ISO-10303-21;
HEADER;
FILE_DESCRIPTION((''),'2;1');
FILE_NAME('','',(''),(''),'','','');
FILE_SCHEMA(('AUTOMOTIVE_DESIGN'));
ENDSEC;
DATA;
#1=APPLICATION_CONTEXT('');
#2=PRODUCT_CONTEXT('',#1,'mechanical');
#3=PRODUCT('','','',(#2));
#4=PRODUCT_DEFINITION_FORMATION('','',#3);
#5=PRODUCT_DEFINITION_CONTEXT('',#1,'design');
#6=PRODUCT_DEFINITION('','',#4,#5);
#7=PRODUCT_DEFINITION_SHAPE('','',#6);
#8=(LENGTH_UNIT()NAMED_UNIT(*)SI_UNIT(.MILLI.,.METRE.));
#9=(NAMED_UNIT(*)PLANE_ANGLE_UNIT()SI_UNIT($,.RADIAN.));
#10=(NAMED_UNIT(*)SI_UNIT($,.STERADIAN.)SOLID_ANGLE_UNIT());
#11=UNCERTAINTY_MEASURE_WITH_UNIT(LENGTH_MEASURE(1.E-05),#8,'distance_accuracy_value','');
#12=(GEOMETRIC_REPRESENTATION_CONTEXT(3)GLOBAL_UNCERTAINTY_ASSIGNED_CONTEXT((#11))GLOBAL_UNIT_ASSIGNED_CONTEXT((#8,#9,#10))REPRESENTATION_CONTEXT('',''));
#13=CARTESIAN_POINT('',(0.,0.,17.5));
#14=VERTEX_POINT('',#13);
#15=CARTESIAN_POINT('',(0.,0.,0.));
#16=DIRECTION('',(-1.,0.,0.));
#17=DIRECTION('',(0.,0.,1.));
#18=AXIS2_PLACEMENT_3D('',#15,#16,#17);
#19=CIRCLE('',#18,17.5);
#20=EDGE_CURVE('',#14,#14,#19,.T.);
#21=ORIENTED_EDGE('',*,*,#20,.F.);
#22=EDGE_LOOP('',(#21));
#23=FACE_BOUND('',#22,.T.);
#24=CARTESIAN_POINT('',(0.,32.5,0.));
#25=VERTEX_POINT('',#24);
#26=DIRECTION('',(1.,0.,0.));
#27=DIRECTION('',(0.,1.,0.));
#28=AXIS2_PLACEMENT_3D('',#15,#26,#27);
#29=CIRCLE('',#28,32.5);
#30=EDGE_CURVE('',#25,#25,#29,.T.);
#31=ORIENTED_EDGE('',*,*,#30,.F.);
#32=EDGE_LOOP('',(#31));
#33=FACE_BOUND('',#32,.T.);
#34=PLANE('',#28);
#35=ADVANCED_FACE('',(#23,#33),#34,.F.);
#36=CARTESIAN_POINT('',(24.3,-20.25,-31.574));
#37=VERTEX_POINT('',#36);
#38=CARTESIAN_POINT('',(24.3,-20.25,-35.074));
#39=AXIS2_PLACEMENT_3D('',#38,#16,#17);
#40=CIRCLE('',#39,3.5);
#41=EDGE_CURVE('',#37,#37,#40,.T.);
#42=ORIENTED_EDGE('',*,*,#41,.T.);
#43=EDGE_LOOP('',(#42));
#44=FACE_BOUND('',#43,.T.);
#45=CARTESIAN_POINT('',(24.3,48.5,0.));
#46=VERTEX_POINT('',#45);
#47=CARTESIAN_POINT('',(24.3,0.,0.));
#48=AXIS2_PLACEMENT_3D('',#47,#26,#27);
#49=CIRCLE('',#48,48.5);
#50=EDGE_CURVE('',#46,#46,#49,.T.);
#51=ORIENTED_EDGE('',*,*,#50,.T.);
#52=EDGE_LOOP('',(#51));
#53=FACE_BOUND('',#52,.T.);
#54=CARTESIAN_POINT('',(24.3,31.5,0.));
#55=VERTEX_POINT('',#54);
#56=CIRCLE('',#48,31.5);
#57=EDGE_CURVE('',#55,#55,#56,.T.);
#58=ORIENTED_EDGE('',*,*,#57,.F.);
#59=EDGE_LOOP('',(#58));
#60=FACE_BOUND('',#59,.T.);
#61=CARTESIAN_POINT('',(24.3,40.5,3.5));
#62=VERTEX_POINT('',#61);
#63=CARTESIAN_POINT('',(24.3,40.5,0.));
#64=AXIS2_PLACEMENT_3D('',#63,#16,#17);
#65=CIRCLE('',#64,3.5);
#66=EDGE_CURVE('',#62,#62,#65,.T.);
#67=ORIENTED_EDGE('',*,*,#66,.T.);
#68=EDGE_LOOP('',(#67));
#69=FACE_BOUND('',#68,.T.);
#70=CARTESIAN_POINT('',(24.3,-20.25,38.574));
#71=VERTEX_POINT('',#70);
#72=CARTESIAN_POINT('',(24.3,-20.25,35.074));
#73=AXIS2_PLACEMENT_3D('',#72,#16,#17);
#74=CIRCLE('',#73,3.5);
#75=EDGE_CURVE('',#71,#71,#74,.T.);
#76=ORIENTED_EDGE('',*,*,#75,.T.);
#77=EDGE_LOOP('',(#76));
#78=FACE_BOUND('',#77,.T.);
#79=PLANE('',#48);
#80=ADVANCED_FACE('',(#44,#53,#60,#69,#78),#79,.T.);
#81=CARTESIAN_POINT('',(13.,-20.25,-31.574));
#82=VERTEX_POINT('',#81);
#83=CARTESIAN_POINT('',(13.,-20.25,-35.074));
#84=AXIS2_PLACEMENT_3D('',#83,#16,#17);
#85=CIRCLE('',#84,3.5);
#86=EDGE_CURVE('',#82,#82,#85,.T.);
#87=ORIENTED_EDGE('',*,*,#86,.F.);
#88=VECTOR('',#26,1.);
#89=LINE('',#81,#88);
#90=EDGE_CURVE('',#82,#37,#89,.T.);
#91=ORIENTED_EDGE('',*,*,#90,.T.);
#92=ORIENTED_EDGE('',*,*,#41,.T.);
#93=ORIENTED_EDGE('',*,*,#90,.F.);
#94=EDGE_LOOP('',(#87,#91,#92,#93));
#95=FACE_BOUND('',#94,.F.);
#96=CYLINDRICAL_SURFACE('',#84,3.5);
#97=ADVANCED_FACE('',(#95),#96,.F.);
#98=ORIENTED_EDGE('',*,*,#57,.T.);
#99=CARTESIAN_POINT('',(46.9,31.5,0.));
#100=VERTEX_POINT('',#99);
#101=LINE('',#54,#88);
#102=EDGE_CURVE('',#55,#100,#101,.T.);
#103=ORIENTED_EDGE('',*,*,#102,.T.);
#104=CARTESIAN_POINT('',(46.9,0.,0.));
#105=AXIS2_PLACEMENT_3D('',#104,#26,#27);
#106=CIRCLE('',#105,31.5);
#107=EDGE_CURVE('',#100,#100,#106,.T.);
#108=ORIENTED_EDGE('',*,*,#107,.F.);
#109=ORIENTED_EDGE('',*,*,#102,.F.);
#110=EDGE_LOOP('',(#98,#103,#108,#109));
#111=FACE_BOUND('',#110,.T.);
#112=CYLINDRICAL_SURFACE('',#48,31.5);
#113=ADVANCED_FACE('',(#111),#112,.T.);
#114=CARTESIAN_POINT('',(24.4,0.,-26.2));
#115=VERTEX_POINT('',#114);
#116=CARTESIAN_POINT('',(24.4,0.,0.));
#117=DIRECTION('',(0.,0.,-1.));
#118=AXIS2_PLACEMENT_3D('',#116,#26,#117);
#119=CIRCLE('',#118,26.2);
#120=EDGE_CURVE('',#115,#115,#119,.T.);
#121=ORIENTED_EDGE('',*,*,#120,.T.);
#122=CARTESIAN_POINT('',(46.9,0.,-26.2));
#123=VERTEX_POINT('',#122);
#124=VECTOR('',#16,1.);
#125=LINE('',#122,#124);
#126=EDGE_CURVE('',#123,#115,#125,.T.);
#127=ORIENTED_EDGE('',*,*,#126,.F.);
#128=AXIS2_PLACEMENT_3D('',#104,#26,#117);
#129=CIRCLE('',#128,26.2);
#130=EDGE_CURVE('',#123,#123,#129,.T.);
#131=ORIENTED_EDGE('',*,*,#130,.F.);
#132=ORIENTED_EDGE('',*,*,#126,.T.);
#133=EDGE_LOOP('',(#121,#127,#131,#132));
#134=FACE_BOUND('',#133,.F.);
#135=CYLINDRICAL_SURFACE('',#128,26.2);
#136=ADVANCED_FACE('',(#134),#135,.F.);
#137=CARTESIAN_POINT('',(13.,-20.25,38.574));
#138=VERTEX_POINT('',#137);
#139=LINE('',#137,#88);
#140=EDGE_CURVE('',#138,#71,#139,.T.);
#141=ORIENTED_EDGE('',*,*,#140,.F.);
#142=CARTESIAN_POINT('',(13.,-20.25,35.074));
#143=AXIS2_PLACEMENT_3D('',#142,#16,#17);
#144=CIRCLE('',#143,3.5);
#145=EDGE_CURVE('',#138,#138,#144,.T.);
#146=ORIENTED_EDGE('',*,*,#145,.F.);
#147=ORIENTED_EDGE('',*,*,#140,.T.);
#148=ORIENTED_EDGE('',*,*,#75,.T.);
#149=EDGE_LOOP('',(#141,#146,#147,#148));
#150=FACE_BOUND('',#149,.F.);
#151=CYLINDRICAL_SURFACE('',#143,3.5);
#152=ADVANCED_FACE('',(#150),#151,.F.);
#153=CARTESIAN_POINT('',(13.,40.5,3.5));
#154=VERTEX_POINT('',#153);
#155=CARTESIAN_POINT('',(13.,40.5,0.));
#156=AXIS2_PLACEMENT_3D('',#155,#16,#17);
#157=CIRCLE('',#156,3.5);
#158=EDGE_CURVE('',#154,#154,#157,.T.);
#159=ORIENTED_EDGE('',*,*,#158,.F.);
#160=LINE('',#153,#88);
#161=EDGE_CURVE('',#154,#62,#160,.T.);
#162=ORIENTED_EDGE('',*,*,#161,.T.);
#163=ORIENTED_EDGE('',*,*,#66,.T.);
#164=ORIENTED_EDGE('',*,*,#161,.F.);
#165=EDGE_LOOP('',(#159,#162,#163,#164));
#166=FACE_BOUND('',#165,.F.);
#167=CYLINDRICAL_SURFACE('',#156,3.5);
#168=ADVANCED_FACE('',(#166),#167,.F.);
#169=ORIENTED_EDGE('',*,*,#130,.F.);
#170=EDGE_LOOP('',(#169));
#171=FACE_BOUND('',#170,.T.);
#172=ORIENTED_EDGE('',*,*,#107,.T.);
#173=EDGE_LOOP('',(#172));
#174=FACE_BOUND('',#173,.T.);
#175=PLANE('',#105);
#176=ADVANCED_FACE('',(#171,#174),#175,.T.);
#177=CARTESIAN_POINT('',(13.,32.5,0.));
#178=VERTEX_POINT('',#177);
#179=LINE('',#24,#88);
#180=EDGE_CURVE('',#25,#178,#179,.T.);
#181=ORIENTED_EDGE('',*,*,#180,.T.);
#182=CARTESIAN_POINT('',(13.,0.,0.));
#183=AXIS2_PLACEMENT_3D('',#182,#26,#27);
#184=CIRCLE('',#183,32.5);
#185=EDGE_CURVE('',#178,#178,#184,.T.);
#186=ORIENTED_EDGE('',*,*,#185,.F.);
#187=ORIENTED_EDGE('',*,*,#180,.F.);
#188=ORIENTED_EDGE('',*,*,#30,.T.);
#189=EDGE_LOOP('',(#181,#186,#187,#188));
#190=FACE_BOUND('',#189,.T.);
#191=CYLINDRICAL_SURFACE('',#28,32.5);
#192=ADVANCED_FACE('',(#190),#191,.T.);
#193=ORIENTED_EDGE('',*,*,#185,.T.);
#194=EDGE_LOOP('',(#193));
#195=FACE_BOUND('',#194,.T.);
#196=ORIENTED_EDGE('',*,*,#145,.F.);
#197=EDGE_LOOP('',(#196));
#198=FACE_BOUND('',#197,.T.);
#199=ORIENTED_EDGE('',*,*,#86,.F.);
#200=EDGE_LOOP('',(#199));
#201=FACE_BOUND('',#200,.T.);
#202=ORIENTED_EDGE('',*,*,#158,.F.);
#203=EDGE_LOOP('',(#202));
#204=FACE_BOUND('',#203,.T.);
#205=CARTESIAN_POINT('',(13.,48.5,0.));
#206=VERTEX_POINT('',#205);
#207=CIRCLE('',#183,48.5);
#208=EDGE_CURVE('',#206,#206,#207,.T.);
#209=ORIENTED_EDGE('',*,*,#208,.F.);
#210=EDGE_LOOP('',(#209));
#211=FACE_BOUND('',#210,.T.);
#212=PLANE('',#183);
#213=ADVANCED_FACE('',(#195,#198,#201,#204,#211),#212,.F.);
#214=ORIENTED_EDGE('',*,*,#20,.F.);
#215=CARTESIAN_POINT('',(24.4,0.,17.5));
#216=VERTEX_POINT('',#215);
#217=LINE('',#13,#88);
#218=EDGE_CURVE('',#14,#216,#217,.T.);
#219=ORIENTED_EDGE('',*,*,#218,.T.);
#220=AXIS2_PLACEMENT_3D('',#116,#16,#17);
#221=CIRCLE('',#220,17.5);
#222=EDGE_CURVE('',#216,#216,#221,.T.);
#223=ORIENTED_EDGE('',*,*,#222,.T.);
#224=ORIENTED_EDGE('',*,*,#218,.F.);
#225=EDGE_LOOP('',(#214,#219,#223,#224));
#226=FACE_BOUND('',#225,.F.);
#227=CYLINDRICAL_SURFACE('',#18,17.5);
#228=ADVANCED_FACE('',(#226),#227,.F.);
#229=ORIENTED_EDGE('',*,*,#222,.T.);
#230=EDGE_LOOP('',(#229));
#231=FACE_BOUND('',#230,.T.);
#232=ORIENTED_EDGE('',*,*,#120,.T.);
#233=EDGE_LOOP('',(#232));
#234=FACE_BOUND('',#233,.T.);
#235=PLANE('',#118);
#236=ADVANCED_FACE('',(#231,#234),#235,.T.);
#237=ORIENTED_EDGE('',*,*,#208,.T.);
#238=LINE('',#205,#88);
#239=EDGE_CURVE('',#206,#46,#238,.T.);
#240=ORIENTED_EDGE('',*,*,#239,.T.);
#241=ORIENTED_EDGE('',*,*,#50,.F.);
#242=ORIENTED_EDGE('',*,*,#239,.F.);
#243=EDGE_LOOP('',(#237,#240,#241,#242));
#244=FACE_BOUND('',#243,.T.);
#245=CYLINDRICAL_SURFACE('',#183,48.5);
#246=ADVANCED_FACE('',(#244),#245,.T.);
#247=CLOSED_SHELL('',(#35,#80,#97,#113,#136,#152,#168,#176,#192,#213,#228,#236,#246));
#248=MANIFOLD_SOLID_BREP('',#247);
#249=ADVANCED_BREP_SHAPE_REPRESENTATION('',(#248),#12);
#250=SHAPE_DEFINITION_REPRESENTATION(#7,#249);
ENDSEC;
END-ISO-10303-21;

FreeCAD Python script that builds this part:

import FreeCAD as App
import Part
import Sketcher


def add_polygon(sketch, points):
    """Adds a closed chain of lines whose ends are joined by coincident constraints."""
    first, n = sketch.GeometryCount, len(points)
    for a, b in zip(points, points[1:] + points[:1]):
        sketch.addGeometry(Part.LineSegment(App.Vector(*a, 0), App.Vector(*b, 0)), False)
    for i in range(n):
        sketch.addConstraint(Sketcher.Constraint("Coincident", first + i, 2, first + (i + 1) % n, 1))

doc = App.newDocument("Part")
params = doc.addObject("Spreadsheet::Sheet", "Params")
for row, (alias, value) in enumerate([
    ("sketch1_width", "13 mm"),
    ("sketch1_height", "17 mm"),
    ("sketch1_height2", "16 mm"),
    ("sketch1_width2", "22.6 mm"),
    ("sketch1_width3", "11.3 mm"),
    ("revolution_angle", "360 deg"),
    ("sketch2_diameter", "7 mm"),
    ("sketch3_diameter", "35 mm"),
    ("sketch4_diameter", "52.4 mm"),
    ("pocket3_length", "22.5 mm"),
], start=1):
    params.set(f"A{row}", alias)
    params.set(f"B{row}", "=" + value)
    params.setAlias(f"B{row}", alias)

body = doc.addObject("PartDesign::Body", "Body")

# Sketch on XY plane
sketch1 = body.newObject("Sketcher::SketchObject", "Sketch")
sketch1.AttachmentSupport = (doc.getObject("XY_Plane"), [""])
sketch1.MapMode = "FlatFace"
add_polygon(sketch1, [(0, 32), (0, 0), (47, 0), (47, 32), (24, 32), (24, 48), (13, 48), (13, 32)])  # lines 0-7
sketch1.addConstraint([
    Sketcher.Constraint("Vertical", 0),
    Sketcher.Constraint("Horizontal", 1),
    Sketcher.Constraint("Vertical", 2),
    Sketcher.Constraint("Horizontal", 3),
    Sketcher.Constraint("Vertical", 4),
    Sketcher.Constraint("Horizontal", 5),
    Sketcher.Constraint("Vertical", 6),
    Sketcher.Constraint("Horizontal", 7),
    Sketcher.Constraint("Coincident", 0, 2, -1, 1),
    Sketcher.Constraint("DistanceX", 7, 2, 7, 1, 13.0),
    Sketcher.Constraint("DistanceY", 4, 1, 4, 2, 17.0),
    Sketcher.Constraint("DistanceY", 6, 2, 6, 1, 16.0),
    Sketcher.Constraint("DistanceX", 3, 2, 3, 1, 22.6),
    Sketcher.Constraint("DistanceX", 5, 2, 5, 1, 11.3),
    Sketcher.Constraint("DistanceY", 0, 2, 0, 1, 32.5),
])
sketch1.setExpression("Constraints[17]", "Params.sketch1_width")
sketch1.setExpression("Constraints[18]", "Params.sketch1_height")
sketch1.setExpression("Constraints[19]", "Params.sketch1_height2")
sketch1.setExpression("Constraints[20]", "Params.sketch1_width2")
sketch1.setExpression("Constraints[21]", "Params.sketch1_width3")
revolution = body.newObject("PartDesign::Revolution", "Revolution")
revolution.Profile = sketch1
revolution.ReferenceAxis = (sketch1, ["H_Axis"])
revolution.setExpression("Angle", "Params.revolution_angle")

# Sketch on YZ plane
sketch2 = body.newObject("Sketcher::SketchObject", "Sketch001")
sketch2.AttachmentSupport = (doc.getObject("YZ_Plane"), [""])
sketch2.MapMode = "FlatFace"
sketch2.AttachmentOffset = App.Placement(App.Vector(0, 0, 13), App.Rotation())
sketch2.addGeometry([
    Part.Circle(App.Vector(40.5, 0, 0), App.Vector(0, 0, 1), 3.5),
    Part.Circle(App.Vector(-20.2, 35.1, 0), App.Vector(0, 0, 1), 3.5),
    Part.Circle(App.Vector(-20.2, -35.1, 0), App.Vector(0, 0, 1), 3.5),
], False)
sketch2.addConstraint([
    Sketcher.Constraint("Equal", 0, 1),
    Sketcher.Constraint("Equal", 1, 2),
    Sketcher.Constraint("Symmetric", 1, 3, 2, 3, -1),
    Sketcher.Constraint("PointOnObject", 0, 3, -1),
    Sketcher.Constraint("Diameter", 0, 7.0),
    Sketcher.Constraint("DistanceX", -1, 1, 0, 3, 40.5),
    Sketcher.Constraint("DistanceX", 1, 3, -1, 1, 20.25),
    Sketcher.Constraint("DistanceY", -1, 1, 1, 3, 35.074),
])
sketch2.setExpression("Constraints[4]", "Params.sketch2_diameter")
pocket1 = body.newObject("PartDesign::Pocket", "Pocket")
pocket1.Profile = sketch2
pocket1.Type = "ThroughAll"
pocket1.Reversed = True

# Sketch on YZ plane
sketch3 = body.newObject("Sketcher::SketchObject", "Sketch002")
sketch3.AttachmentSupport = (doc.getObject("YZ_Plane"), [""])
sketch3.MapMode = "FlatFace"
sketch3.addGeometry(Part.Circle(App.Vector(0, 0, 0), App.Vector(0, 0, 1), 18), False)
sketch3.addConstraint([
    Sketcher.Constraint("Coincident", 0, 3, -1, 1),
    Sketcher.Constraint("Diameter", 0, 35.0),
])
sketch3.setExpression("Constraints[1]", "Params.sketch3_diameter")
pocket2 = body.newObject("PartDesign::Pocket", "Pocket001")
pocket2.Profile = sketch3
pocket2.Type = "ThroughAll"
pocket2.Reversed = True

# Sketch on YZ plane
sketch4 = body.newObject("Sketcher::SketchObject", "Sketch003")
sketch4.AttachmentSupport = (doc.getObject("YZ_Plane"), [""])
sketch4.MapMode = "FlatFace"
sketch4.AttachmentOffset = App.Placement(App.Vector(0, 0, 46.9), App.Rotation())
sketch4.addGeometry(Part.Circle(App.Vector(0, 0, 0), App.Vector(0, 0, 1), 26), False)
sketch4.addConstraint([
    Sketcher.Constraint("Coincident", 0, 3, -1, 1),
    Sketcher.Constraint("Diameter", 0, 52.4),
])
sketch4.setExpression("Constraints[1]", "Params.sketch4_diameter")
pocket3 = body.newObject("PartDesign::Pocket", "Pocket002")
pocket3.Profile = sketch4
pocket3.setExpression("Length", "Params.pocket3_length")

doc.recompute()
